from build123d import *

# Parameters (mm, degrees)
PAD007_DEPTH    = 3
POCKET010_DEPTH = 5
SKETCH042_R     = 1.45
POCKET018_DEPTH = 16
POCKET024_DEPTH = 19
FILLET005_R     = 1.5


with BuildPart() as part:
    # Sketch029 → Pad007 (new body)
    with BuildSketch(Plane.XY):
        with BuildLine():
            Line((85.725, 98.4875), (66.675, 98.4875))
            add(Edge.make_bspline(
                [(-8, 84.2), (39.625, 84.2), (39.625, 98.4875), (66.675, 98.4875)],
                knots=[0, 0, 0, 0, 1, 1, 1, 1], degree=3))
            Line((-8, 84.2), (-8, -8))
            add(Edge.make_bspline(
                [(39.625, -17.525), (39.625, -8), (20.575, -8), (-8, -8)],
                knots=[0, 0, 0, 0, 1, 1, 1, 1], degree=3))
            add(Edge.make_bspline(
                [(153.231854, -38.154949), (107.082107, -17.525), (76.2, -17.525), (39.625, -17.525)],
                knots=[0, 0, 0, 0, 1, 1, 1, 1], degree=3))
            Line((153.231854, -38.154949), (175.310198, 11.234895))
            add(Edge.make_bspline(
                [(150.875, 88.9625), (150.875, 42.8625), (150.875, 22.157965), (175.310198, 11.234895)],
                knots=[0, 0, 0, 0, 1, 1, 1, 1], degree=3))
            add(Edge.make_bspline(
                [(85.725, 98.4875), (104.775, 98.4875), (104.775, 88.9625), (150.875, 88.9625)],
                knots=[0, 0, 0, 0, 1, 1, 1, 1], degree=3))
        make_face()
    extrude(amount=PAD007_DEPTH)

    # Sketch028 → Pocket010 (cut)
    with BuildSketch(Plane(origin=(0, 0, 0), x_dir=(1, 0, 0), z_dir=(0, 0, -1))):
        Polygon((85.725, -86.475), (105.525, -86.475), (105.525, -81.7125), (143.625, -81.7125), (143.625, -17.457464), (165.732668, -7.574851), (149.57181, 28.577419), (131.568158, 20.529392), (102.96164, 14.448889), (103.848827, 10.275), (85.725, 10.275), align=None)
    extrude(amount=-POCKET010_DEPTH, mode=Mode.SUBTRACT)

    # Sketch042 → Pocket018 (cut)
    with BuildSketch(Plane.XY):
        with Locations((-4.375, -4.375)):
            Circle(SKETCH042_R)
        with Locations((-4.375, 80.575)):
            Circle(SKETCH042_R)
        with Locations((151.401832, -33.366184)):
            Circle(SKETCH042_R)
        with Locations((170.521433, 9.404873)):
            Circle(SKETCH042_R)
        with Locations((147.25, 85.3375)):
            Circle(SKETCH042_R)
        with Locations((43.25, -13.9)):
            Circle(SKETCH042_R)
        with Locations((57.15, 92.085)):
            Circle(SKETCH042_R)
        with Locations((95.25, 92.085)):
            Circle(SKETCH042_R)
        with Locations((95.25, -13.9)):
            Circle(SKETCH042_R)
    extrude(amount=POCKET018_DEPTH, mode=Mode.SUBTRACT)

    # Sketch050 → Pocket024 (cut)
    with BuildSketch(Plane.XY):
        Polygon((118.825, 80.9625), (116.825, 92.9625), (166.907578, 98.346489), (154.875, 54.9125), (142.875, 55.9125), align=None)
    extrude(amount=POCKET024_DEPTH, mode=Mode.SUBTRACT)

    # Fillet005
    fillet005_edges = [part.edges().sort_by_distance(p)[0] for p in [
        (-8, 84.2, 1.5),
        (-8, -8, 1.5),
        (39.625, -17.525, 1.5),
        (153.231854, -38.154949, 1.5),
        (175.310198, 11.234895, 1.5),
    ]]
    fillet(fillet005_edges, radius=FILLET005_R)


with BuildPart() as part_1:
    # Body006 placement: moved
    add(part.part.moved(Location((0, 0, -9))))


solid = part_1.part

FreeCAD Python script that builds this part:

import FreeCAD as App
import Part
import Sketcher

V = App.Vector
Q = App.Units.Quantity


def edges_at(feature, points):
    """Names of the edges that pass closest to the given points."""
    edges = feature.Shape.Edges
    near = lambda p: min(range(len(edges)), key=lambda i: edges[i].distToShape(Part.Vertex(*p))[0])
    return sorted({f"Edge{near(p) + 1}" for p in points})


def add_polygon(sketch, points):
    """Adds a closed chain of lines whose ends are joined by coincident constraints."""
    first, n = sketch.GeometryCount, len(points)
    for a, b in zip(points, points[1:] + points[:1]):
        sketch.addGeometry(Part.LineSegment(App.Vector(*a, 0), App.Vector(*b, 0)), False)
    for i in range(n):
        sketch.addConstraint(Sketcher.Constraint("Coincident", first + i, 2, first + (i + 1) % n, 1))

doc = App.newDocument("Part")
body = doc.addObject("PartDesign::Body", "Body")

sketch1 = body.newObject("Sketcher::SketchObject", "Sketch")
sketch1.AttachmentSupport = (doc.getObject("XY_Plane"), [""])
sketch1.MapMode = "FlatFace"
sketch1.addGeometry(Part.LineSegment(V(85.725, 98.4875, 0), V(66.675, 98.4875, 0)), False)
sketch1.addGeometry(Part.BSplineCurve([V(-8, 84.2, 0), V(39.625, 84.2, 0), V(39.625, 98.4875, 0), V(66.675, 98.4875, 0)], [4, 4], [0, 1], False, 3, [1, 1, 1, 1], False), False)
sketch1.addGeometry(Part.LineSegment(V(-8, 84.2, 0), V(-8, -8, 0)), False)
sketch1.addGeometry(Part.BSplineCurve([V(39.625, -17.525, 0), V(39.625, -8, 0), V(20.575, -8, 0), V(-8, -8, 0)], [4, 4], [0, 1], False, 3, [1, 1, 1, 1], False), False)
sketch1.addGeometry(Part.BSplineCurve([V(153.231854, -38.154949, 0), V(107.082107, -17.525, 0), V(76.2, -17.525, 0), V(39.625, -17.525, 0)], [4, 4], [0, 1], False, 3, [1, 1, 1, 1], False), False)
sketch1.addGeometry(Part.LineSegment(V(153.231854, -38.154949, 0), V(175.310198, 11.234895, 0)), False)
sketch1.addGeometry(Part.BSplineCurve([V(150.875, 88.9625, 0), V(150.875, 42.8625, 0), V(150.875, 22.157965, 0), V(175.310198, 11.234895, 0)], [4, 4], [0, 1], False, 3, [1, 1, 1, 1], False), False)
sketch1.addGeometry(Part.BSplineCurve([V(85.725, 98.4875, 0), V(104.775, 98.4875, 0), V(104.775, 88.9625, 0), V(150.875, 88.9625, 0)], [4, 4], [0, 1], False, 3, [1, 1, 1, 1], False), False)
sketch1.addConstraint(Sketcher.Constraint("Block", 1))
sketch1.addConstraint(Sketcher.Constraint("Block", 3))
sketch1.addConstraint(Sketcher.Constraint("Block", 4))
sketch1.addConstraint(Sketcher.Constraint("Block", 6))
sketch1.addConstraint(Sketcher.Constraint("Block", 7))
sketch1.addConstraint(Sketcher.Constraint("Coincident", 0, 2, 1, 2))
sketch1.addConstraint(Sketcher.Constraint("Coincident", 1, 1, 2, 1))
sketch1.addConstraint(Sketcher.Constraint("Coincident", 2, 2, 3, 2))
sketch1.addConstraint(Sketcher.Constraint("Coincident", 4, 1, 5, 1))
sketch1.addConstraint(Sketcher.Constraint("Coincident", 5, 2, 6, 2))
sketch1.addConstraint(Sketcher.Constraint("Coincident", 7, 1, 0, 1))
pad1 = body.newObject("PartDesign::Pad", "Pad")
pad1.Profile = sketch1
pad1.Length = 3

sketch2 = body.newObject("Sketcher::SketchObject", "Sketch001")
sketch2.AttachmentSupport = (doc.getObject("XY_Plane"), [""])
sketch2.MapMode = "FlatFace"
add_polygon(sketch2, [(85.7, 86.5), (105.5, 86.5), (105.5, 81.7), (143.6, 81.7), (143.6, 17.5), (165.7, 7.6), (149.6, -28.6), (131.6, -20.5), (103, -14.4), (103.8, -10.3), (85.7, -10.3)])
sketch2.addConstraint(Sketcher.Constraint("Horizontal", 0))
sketch2.addConstraint(Sketcher.Constraint("Vertical", 1))
sketch2.addConstraint(Sketcher.Constraint("Horizontal", 2))
sketch2.addConstraint(Sketcher.Constraint("Vertical", 3))
sketch2.addConstraint(Sketcher.Constraint("Horizontal", 9))
sketch2.addConstraint(Sketcher.Constraint("Vertical", 10))
sketch2.addConstraint(Sketcher.Constraint("Perpendicular", 4, 5))
sketch2.addConstraint(Sketcher.Constraint("Perpendicular", 5, 6))
sketch2.addConstraint(Sketcher.Constraint("Perpendicular", 7, 8))
sketch2.addConstraint(Sketcher.Constraint("Angle", 7, Q("168 deg")))
sketch2.addConstraint(Sketcher.Constraint("DistanceX", 0, 1, 0, 2, Q("19.8 mm")))
sketch2.addConstraint(Sketcher.Constraint("DistanceX", 2, 1, 2, 2, Q("38.1 mm")))
sketch2.addConstraint(Sketcher.Constraint("Distance", 5, Q("39.599999 mm")))
sketch2.addConstraint(Sketcher.Constraint("DistanceY", 10, 1, 10, 2, Q("96.75 mm")))
sketch2.addConstraint(Sketcher.Constraint("DistanceY", 1, 2, 1, 1, Q("4.7625 mm")))
sketch2.addConstraint(Sketcher.Constraint("DistanceX", -1, 1, 0, 2, Q("105.525 mm")))
sketch2.addConstraint(Sketcher.Constraint("DistanceY", -1, 1, 0, 2, Q("86.475 mm")))
sketch2.addConstraint(Sketcher.Constraint("DistanceX", 9, 2, 9, 1, Q("18.123827 mm")))
sketch2.addConstraint(Sketcher.Constraint("DistanceY", 3, 2, 3, 1, Q("64.255036 mm")))
sketch2.addConstraint(Sketcher.Constraint("DistanceY", -1, 1, 4, 2, Q("7.574851 mm")))
sketch2.addConstraint(Sketcher.Constraint("DistanceX", -1, 1, 5, 2, Q("149.57181 mm")))
sketch2.addConstraint(Sketcher.Constraint("DistanceX", -1, 1, 6, 2, Q("131.568158 mm")))
pocket1 = body.newObject("PartDesign::Pocket", "Pocket")
pocket1.Profile = sketch2
pocket1.Length = 5
pocket1.Reversed = True

sketch3 = body.newObject("Sketcher::SketchObject", "Sketch002")
sketch3.AttachmentSupport = (doc.getObject("XY_Plane"), [""])
sketch3.MapMode = "FlatFace"
sketch3.addGeometry(Part.Circle(V(-4.4, -4.4, 0), V(0, 0, 1), 1.4), False)
sketch3.addGeometry(Part.Circle(V(-4.4, 80.6, 0), V(0, 0, 1), 1.4), False)
sketch3.addGeometry(Part.Circle(V(151.4, -33.4, 0), V(0, 0, 1), 1.4), False)
sketch3.addGeometry(Part.Circle(V(170.5, 9.4, 0), V(0, 0, 1), 1.4), False)
sketch3.addGeometry(Part.Circle(V(147.2, 85.3, 0), V(0, 0, 1), 1.4), False)
sketch3.addGeometry(Part.Circle(V(43.2, -13.9, 0), V(0, 0, 1), 1.4), False)
sketch3.addGeometry(Part.Circle(V(57.1, 92.1, 0), V(0, 0, 1), 1.4), False)
sketch3.addGeometry(Part.Circle(V(95.2, 92.1, 0), V(0, 0, 1), 1.4), False)
sketch3.addGeometry(Part.Circle(V(95.2, -13.9, 0), V(0, 0, 1), 1.4), False)
sketch3.addConstraint(Sketcher.Constraint("Equal", 0, 1))
sketch3.addConstraint(Sketcher.Constraint("Equal", 1, 2))
sketch3.addConstraint(Sketcher.Constraint("Equal", 2, 3))
sketch3.addConstraint(Sketcher.Constraint("Equal", 3, 4))
sketch3.addConstraint(Sketcher.Constraint("Equal", 4, 5))
sketch3.addConstraint(Sketcher.Constraint("Equal", 5, 6))
sketch3.addConstraint(Sketcher.Constraint("Equal", 6, 7))
sketch3.addConstraint(Sketcher.Constraint("Equal", 7, 8))
sketch3.addConstraint(Sketcher.Constraint("Horizontal", 6, 3, 7, 3))
sketch3.addConstraint(Sketcher.Constraint("Horizontal", 5, 3, 8, 3))
sketch3.addConstraint(Sketcher.Constraint("Vertical", 0, 3, 1, 3))
sketch3.addConstraint(Sketcher.Constraint("Vertical", 7, 3, 8, 3))
sketch3.addConstraint(Sketcher.Constraint("Diameter", 0, Q("2.9 mm")))
sketch3.addConstraint(Sketcher.Constraint("DistanceX", 5, 3, 4, 3, Q("104 mm")))
sketch3.addConstraint(Sketcher.Constraint("DistanceX", 7, 3, 4, 3, Q("52 mm")))
sketch3.addConstraint(Sketcher.Constraint("DistanceY", 5, 3, -1, 1, Q("13.9 mm")))
sketch3.addConstraint(Sketcher.Constraint("DistanceX", 6, 3, 4, 3, Q("90.1 mm")))
sketch3.addConstraint(Sketcher.Constraint("DistanceX", -1, 1, 4, 3, Q("147.25 mm")))
sketch3.addConstraint(Sketcher.Constraint("DistanceY", 0, 3, 1, 3, Q("84.95 mm")))
sketch3.addConstraint(Sketcher.Constraint("DistanceY", 1, 3, 6, 3, Q("11.51 mm")))
sketch3.addConstraint(Sketcher.Constraint("DistanceX", 0, 3, -1, 1, Q("4.375 mm")))
sketch3.addConstraint(Sketcher.Constraint("DistanceY", 0, 3, -1, 1, Q("4.375 mm")))
sketch3.addConstraint(Sketcher.Constraint("DistanceY", -1, 1, 4, 3, Q("85.3375 mm")))
sketch3.addConstraint(Sketcher.Constraint("DistanceX", 2, 3, 3, 3, Q("19.119601 mm")))
sketch3.addConstraint(Sketcher.Constraint("DistanceX", -1, 1, 2, 3, Q("151.401832 mm")))
sketch3.addConstraint(Sketcher.Constraint("DistanceY", 2, 3, -1, 1, Q("33.366184 mm")))
sketch3.addConstraint(Sketcher.Constraint("DistanceY", -1, 1, 3, 3, Q("9.404873 mm")))
pocket2 = body.newObject("PartDesign::Pocket", "Pocket001")
pocket2.Profile = sketch3
pocket2.Length = 16
pocket2.Reversed = True

sketch4 = body.newObject("Sketcher::SketchObject", "Sketch003")
sketch4.AttachmentSupport = (doc.getObject("XY_Plane"), [""])
sketch4.MapMode = "FlatFace"
add_polygon(sketch4, [(117, 93), (119, 81), (143, 56), (155, 55), (167, 98)])
sketch4.addConstraint(Sketcher.Constraint("DistanceX", 1, 2, 2, 2, Q("12 mm")))
sketch4.addConstraint(Sketcher.Constraint("DistanceY", 2, 2, 1, 2, Q("1 mm")))
sketch4.addConstraint(Sketcher.Constraint("DistanceX", 4, 2, 0, 2, Q("2 mm")))
sketch4.addConstraint(Sketcher.Constraint("DistanceY", 0, 2, 4, 2, Q("12 mm")))
sketch4.addConstraint(Sketcher.Constraint("DistanceX", 0, 2, 1, 2, Q("24.05 mm")))
sketch4.addConstraint(Sketcher.Constraint("DistanceY", 1, 2, 0, 2, Q("25.05 mm")))
sketch4.addConstraint(Sketcher.Constraint("DistanceX", -1, 1, 0, 2, Q("118.825 mm")))
sketch4.addConstraint(Sketcher.Constraint("DistanceY", -1, 1, 0, 2, Q("80.9625 mm")))
sketch4.addConstraint(Sketcher.Constraint("DistanceX", -1, 1, 3, 2, Q("166.907578 mm")))
sketch4.addConstraint(Sketcher.Constraint("DistanceY", -1, 1, 3, 2, Q("98.346489 mm")))
pocket3 = body.newObject("PartDesign::Pocket", "Pocket002")
pocket3.Profile = sketch4
pocket3.Length = 19
pocket3.Reversed = True
doc.recompute()

fillet = body.newObject("PartDesign::Fillet", "Fillet")
fillet.Base = (pocket3, edges_at(pocket3, [
    (-8, 84.2, 1.5),
    (-8, -8, 1.5),
    (39.625, -17.525, 1.5),
    (153.232, -38.155, 1.5),
    (175.31, 11.235, 1.5),
]))
fillet.Radius = 1.5
body2 = doc.addObject("PartDesign::Body", "Body001")
doc.recompute()

body.Placement = App.Placement(V(0, 0, -9), App.Rotation(V(0, 0, 1), 0))
boolean = body2.newObject("PartDesign::Boolean", "Boolean")
boolean.Type = "Fuse"
boolean.addObjects([body])

doc.recompute()
